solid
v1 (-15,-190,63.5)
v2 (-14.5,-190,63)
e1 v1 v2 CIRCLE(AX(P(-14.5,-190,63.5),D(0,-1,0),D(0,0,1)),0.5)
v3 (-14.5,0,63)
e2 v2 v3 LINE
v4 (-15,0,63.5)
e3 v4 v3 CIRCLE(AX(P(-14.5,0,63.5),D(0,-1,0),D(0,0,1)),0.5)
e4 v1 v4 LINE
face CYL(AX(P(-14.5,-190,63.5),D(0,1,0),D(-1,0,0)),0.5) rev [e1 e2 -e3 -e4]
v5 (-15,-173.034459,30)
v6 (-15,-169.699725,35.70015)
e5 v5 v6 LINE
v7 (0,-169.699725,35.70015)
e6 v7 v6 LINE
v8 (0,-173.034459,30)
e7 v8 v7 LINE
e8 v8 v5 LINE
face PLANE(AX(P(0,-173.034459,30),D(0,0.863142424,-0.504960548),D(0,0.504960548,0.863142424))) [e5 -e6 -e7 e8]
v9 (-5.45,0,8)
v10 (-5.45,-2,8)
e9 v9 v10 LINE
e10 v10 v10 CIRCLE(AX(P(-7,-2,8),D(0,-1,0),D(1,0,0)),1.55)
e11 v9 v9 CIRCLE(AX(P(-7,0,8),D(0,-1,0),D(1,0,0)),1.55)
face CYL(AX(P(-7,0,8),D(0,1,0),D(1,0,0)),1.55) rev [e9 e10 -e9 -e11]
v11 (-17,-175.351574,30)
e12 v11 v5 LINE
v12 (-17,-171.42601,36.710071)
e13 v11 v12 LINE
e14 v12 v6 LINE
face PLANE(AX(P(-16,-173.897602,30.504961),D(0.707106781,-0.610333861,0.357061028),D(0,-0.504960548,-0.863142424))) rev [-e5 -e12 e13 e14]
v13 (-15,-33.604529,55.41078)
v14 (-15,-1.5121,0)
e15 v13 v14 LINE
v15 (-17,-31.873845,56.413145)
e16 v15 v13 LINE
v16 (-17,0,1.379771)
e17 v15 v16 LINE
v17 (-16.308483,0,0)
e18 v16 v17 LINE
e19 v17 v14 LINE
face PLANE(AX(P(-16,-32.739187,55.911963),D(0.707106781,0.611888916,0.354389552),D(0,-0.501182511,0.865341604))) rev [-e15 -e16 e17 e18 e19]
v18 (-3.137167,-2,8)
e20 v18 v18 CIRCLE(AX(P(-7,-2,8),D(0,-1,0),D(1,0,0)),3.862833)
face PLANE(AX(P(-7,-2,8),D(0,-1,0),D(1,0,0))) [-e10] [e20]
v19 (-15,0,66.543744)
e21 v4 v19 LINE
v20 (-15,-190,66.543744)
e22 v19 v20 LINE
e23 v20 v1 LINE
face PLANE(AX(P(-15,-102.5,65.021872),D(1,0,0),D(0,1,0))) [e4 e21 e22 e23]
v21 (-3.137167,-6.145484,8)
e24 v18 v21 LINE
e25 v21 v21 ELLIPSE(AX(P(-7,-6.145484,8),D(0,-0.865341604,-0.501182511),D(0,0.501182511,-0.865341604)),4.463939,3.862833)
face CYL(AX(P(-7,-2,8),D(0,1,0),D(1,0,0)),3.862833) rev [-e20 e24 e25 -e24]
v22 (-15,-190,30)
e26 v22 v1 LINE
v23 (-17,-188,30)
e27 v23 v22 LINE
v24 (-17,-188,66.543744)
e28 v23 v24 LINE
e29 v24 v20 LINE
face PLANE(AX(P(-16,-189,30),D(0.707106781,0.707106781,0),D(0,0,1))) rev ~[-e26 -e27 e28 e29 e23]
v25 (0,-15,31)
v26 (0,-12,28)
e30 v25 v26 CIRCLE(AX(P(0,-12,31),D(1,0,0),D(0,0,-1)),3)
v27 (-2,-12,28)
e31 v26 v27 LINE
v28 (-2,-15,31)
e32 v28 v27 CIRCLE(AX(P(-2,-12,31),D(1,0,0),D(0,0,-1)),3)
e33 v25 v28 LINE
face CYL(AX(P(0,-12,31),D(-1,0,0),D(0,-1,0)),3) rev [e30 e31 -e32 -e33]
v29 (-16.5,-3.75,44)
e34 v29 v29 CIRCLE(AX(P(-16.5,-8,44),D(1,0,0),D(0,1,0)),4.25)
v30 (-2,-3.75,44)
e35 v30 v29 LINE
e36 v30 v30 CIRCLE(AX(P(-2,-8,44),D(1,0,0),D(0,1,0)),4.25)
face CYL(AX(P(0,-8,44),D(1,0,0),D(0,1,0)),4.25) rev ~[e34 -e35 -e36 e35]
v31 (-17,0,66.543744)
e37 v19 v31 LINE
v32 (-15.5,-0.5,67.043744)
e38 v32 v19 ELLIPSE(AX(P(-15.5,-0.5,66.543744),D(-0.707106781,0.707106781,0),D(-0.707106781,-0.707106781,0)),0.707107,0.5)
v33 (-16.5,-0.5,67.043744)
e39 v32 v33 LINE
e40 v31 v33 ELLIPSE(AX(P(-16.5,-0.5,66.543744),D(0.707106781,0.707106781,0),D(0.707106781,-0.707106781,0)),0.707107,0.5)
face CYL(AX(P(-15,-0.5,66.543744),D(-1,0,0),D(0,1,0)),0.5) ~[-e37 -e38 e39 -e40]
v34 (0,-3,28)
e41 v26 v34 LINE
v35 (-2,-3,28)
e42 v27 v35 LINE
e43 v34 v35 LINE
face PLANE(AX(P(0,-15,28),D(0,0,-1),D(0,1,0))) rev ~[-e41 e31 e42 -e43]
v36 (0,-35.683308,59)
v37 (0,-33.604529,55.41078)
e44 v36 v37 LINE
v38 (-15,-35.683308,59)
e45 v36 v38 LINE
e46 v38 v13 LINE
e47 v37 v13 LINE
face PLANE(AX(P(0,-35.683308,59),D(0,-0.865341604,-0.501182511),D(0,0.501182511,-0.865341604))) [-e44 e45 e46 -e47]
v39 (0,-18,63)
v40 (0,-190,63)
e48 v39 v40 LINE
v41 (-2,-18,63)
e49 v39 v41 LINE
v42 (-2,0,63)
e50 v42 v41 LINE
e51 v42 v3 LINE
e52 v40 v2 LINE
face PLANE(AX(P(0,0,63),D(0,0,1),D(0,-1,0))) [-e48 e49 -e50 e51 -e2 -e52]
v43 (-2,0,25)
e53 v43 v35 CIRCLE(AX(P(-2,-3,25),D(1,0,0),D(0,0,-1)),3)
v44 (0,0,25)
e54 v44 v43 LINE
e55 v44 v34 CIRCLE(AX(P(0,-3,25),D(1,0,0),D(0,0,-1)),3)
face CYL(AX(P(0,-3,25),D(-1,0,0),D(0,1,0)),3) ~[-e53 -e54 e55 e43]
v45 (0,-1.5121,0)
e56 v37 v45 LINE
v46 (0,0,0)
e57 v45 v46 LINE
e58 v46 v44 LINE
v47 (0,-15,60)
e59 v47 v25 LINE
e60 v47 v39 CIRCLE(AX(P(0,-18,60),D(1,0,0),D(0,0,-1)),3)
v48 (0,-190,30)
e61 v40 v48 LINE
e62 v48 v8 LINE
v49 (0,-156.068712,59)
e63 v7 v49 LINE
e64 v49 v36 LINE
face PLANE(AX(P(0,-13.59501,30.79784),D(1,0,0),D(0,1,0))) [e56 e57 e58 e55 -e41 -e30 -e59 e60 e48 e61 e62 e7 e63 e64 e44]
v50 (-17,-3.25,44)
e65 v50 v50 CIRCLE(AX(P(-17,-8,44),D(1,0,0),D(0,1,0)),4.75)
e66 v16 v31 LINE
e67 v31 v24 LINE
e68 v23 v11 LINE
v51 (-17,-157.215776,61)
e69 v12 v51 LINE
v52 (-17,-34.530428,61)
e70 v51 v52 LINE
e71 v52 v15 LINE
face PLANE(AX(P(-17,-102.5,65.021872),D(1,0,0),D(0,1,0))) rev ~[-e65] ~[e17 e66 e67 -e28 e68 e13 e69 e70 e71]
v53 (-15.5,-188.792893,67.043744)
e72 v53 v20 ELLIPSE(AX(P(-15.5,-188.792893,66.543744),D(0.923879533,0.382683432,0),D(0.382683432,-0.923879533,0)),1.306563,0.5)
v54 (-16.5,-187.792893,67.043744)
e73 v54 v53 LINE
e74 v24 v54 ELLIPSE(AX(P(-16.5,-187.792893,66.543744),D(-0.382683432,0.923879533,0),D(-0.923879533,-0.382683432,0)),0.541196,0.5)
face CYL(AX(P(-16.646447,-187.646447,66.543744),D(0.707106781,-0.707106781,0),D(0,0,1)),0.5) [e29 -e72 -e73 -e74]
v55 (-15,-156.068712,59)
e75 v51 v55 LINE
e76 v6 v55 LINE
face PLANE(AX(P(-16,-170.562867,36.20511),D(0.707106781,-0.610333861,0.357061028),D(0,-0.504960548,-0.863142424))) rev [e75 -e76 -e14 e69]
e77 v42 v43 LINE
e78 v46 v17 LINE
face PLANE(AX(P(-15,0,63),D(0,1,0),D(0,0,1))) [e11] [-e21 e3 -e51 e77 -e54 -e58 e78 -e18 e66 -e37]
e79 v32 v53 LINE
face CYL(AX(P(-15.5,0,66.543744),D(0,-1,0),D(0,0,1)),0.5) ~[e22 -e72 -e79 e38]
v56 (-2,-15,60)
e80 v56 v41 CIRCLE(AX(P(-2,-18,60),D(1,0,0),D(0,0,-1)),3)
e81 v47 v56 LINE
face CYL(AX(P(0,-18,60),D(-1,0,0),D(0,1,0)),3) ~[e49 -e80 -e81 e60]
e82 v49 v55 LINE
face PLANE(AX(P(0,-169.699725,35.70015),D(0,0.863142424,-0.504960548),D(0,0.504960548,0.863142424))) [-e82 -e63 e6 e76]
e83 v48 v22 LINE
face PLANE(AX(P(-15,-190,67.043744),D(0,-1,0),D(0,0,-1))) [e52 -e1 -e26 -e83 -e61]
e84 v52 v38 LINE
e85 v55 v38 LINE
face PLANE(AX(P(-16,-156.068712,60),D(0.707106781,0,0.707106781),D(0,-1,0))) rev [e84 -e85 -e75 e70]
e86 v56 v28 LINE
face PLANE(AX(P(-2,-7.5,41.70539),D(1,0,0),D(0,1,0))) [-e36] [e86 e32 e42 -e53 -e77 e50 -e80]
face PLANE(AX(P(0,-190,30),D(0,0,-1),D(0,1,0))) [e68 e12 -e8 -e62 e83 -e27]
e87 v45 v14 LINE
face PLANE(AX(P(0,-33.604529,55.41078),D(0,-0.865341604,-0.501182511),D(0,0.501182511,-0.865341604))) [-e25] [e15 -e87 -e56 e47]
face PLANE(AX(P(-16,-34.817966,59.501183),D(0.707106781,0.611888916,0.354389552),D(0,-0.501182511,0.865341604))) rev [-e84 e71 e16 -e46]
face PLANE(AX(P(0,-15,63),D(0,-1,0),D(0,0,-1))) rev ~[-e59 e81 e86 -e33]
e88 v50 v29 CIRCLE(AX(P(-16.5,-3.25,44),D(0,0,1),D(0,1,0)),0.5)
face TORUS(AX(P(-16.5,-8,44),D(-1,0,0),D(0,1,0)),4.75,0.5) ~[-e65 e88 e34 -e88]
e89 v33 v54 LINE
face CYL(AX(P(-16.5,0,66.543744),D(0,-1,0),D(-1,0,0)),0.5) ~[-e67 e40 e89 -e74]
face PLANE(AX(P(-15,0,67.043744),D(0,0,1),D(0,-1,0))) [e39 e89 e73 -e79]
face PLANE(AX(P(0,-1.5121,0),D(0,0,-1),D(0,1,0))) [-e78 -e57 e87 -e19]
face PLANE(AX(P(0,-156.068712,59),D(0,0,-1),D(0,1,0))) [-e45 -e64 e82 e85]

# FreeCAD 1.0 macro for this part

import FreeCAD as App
import Part
import Sketcher


def edges_at(feature, points):
    """Names of the edges that pass closest to the given points."""
    edges = feature.Shape.Edges
    near = lambda p: min(range(len(edges)), key=lambda i: edges[i].distToShape(Part.Vertex(*p))[0])
    return sorted({f"Edge{near(p) + 1}" for p in points})


def add_polygon(sketch, points):
    """Adds a closed chain of lines whose ends are joined by coincident constraints."""
    first, n = sketch.GeometryCount, len(points)
    for a, b in zip(points, points[1:] + points[:1]):
        sketch.addGeometry(Part.LineSegment(App.Vector(*a, 0), App.Vector(*b, 0)), False)
    for i in range(n):
        sketch.addConstraint(Sketcher.Constraint("Coincident", first + i, 2, first + (i + 1) % n, 1))

doc = App.newDocument("Part")
params = doc.addObject("Spreadsheet::Sheet", "Params")
for row, (alias, value) in enumerate([
    ("sketch1_diameter", "8.5 mm"),
    ("sketch1_width", "190 mm"),
    ("sketch1_height", "63 mm"),
    ("sketch1_height2", "33 mm"),
    ("pad1_length", "17 mm"),
    ("sketch2_diameter", "8.5 mm"),
    ("sketch2_width", "15 mm"),
    ("sketch2_height", "35 mm"),
    ("pocket1_length", "2 mm"),
    ("sketch3_width", "190 mm"),
    ("pad2_length", "2 mm"),
    ("fillet_radius", "3 mm"),
    ("sketch4_diameter", "3.1 mm"),
    ("pocket2_length", "25 mm"),
    ("sketch5_diameter", "3.1 mm"),
    ("pocket3_length", "23 mm"),
    ("chamfer_size", "2 mm"),
    ("fillet2_radius", "0.5 mm"),
], start=1):
    params.set(f"A{row}", alias)
    params.set(f"B{row}", "=" + value)
    params.setAlias(f"B{row}", alias)

body = doc.addObject("PartDesign::Body", "Body")

sketch1 = doc.addObject("Sketcher::SketchObject", "Sketch")
body.addObject(sketch1)
sketch1.AttachmentSupport = (doc.YZ_Plane, [""])
sketch1.MapMode = "FlatFace"
add_polygon(sketch1, [(-1.5, 0), (0, 0), (0, 63), (-190, 63), (-190, 30), (-173, 30), (-169.7, 35.7), (-156.1, 59), (-35.7, 59), (-33.6, 55.4)])
sketch1.addGeometry(Part.Circle(App.Vector(-8, 44, 0), App.Vector(0, 0, 1), 4.2), False)
sketch1.addConstraint([
    Sketcher.Constraint("Horizontal", 0),
    Sketcher.Constraint("Vertical", 1),
    Sketcher.Constraint("Horizontal", 2),
    Sketcher.Constraint("Vertical", 3),
    Sketcher.Constraint("Horizontal", 4),
    Sketcher.Constraint("Horizontal", 7),
    Sketcher.Constraint("Coincident", 0, 2, -1, 1),
    Sketcher.Constraint("Parallel", 5, 6),
    Sketcher.Constraint("Parallel", 8, 9),
    Sketcher.Constraint("Diameter", 10, 8.5),
    Sketcher.Constraint("DistanceX", 2, 2, 2, 1, 190.0),
    Sketcher.Constraint("DistanceY", 1, 1, 1, 2, 63.0),
    Sketcher.Constraint("DistanceY", 3, 2, 3, 1, 33.0),
    Sketcher.Constraint("DistanceX", 10, 3, -1, 1, 8.0),
    Sketcher.Constraint("DistanceY", -1, 1, 10, 3, 44.0),
    Sketcher.Constraint("DistanceY", -1, 1, 6, 2, 59.0),
    Sketcher.Constraint("DistanceX", 0, 1, 0, 2, 1.5121),
    Sketcher.Constraint("DistanceX", 4, 1, 4, 2, 16.965541),
    Sketcher.Constraint("Distance", 5, 6.60395),
    Sketcher.Constraint("Distance", 8, 4.147749),
    Sketcher.Constraint("DistanceX", 7, 1, 7, 2, 120.385405),
    Sketcher.Constraint("DistanceY", -1, 1, 5, 2, 35.70015),
])
sketch1.setExpression("Constraints[19]", "Params.sketch1_diameter")
sketch1.setExpression("Constraints[20]", "Params.sketch1_width")
sketch1.setExpression("Constraints[21]", "Params.sketch1_height")
sketch1.setExpression("Constraints[22]", "Params.sketch1_height2")
pad1 = doc.addObject("PartDesign::Pad", "Pad")
body.addObject(pad1)
pad1.Profile = sketch1
pad1.setExpression("Length", "Params.pad1_length")
pad1.Reversed = True

sketch2 = doc.addObject("Sketcher::SketchObject", "Sketch001")
body.addObject(sketch2)
sketch2.AttachmentSupport = (doc.YZ_Plane, [""])
sketch2.MapMode = "FlatFace"
add_polygon(sketch2, [(-15, 28), (0, 28), (0, 63), (-15, 63)])
sketch2.addGeometry(Part.Circle(App.Vector(-8, 44, 0), App.Vector(0, 0, 1), 4.2), False)
sketch2.addConstraint([
    Sketcher.Constraint("Horizontal", 0),
    Sketcher.Constraint("Vertical", 1),
    Sketcher.Constraint("Horizontal", 2),
    Sketcher.Constraint("Vertical", 3),
    Sketcher.Constraint("PointOnObject", 0, 2, -2),
    Sketcher.Constraint("Diameter", 4, 8.5),
    Sketcher.Constraint("DistanceX", 0, 1, 0, 2, 15.0),
    Sketcher.Constraint("DistanceY", 1, 1, 1, 2, 35.0),
    Sketcher.Constraint("DistanceX", 4, 3, -1, 1, 8.0),
    Sketcher.Constraint("DistanceY", -1, 1, 4, 3, 44.0),
    Sketcher.Constraint("DistanceY", -1, 1, 0, 2, 28.0),
])
sketch2.setExpression("Constraints[9]", "Params.sketch2_diameter")
sketch2.setExpression("Constraints[10]", "Params.sketch2_width")
sketch2.setExpression("Constraints[11]", "Params.sketch2_height")
pocket1 = doc.addObject("PartDesign::Pocket", "Pocket")
body.addObject(pocket1)
pocket1.Profile = sketch2
pocket1.setExpression("Length", "Params.pocket1_length")

sketch3 = doc.addObject("Sketcher::SketchObject", "Sketch002")
body.addObject(sketch3)
sketch3.AttachmentSupport = (doc.YZ_Plane, [""])
sketch3.MapMode = "FlatFace"
sketch3.AttachmentOffset = App.Placement(App.Vector(0, 0, -15), App.Rotation())
add_polygon(sketch3, [(-190, 63), (0, 63), (0, 67), (-190, 67)])
sketch3.addConstraint([
    Sketcher.Constraint("Horizontal", 0),
    Sketcher.Constraint("Vertical", 1),
    Sketcher.Constraint("Horizontal", 2),
    Sketcher.Constraint("Vertical", 3),
    Sketcher.Constraint("PointOnObject", 0, 2, -2),
    Sketcher.Constraint("DistanceX", 0, 1, 0, 2, 190.0),
    Sketcher.Constraint("DistanceY", -1, 1, 0, 2, 63.0),
    Sketcher.Constraint("DistanceY", 1, 1, 1, 2, 4.043744),
])
sketch3.setExpression("Constraints[9]", "Params.sketch3_width")
pad2 = doc.addObject("PartDesign::Pad", "Pad001")
body.addObject(pad2)
pad2.Profile = sketch3
pad2.setExpression("Length", "Params.pad2_length")
pad2.Reversed = True
doc.recompute()

fillet = doc.addObject("PartDesign::Fillet", "Fillet")
body.addObject(fillet)
fillet.Base = (pad2, edges_at(pad2, [(-1, -15, 28), (-1, -15, 63), (-1, 0, 28)]))
fillet.setExpression("Radius", "Params.fillet_radius")

sketch4 = doc.addObject("Sketcher::SketchObject", "Sketch003")
body.addObject(sketch4)
sketch4.AttachmentSupport = (doc.XZ_Plane, [""])
sketch4.MapMode = "FlatFace"
sketch4.addGeometry(Part.Circle(App.Vector(-7, 8, 0), App.Vector(0, 0, 1), 1.6), False)
sketch4.addConstraint([
    Sketcher.Constraint("Diameter", 0, 3.1),
    Sketcher.Constraint("DistanceX", 0, 3, -1, 1, 7.0),
    Sketcher.Constraint("DistanceY", -1, 1, 0, 3, 8.0),
])
sketch4.setExpression("Constraints[0]", "Params.sketch4_diameter")
pocket2 = doc.addObject("PartDesign::Pocket", "Pocket001")
body.addObject(pocket2)
pocket2.Profile = sketch4
pocket2.setExpression("Length", "Params.pocket2_length")
pocket2.Reversed = True

sketch5 = doc.addObject("Sketcher::SketchObject", "Sketch004")
body.addObject(sketch5)
sketch5.AttachmentSupport = (doc.XZ_Plane, [""])
sketch5.MapMode = "FlatFace"
sketch5.AttachmentOffset = App.Placement(App.Vector(0, 0, 2), App.Rotation())
sketch5.addGeometry([
    Part.Circle(App.Vector(-7, 8, 0), App.Vector(0, 0, 1), 3.9),
    Part.Circle(App.Vector(-7, 8, 0), App.Vector(0, 0, 1), 1.6),
], False)
sketch5.addConstraint([
    Sketcher.Constraint("Coincident", 1, 3, 0, 3),
    Sketcher.Constraint("Diameter", 1, 3.1),
    Sketcher.Constraint("DistanceX", 0, 3, -1, 1, 7.0),
    Sketcher.Constraint("DistanceY", -1, 1, 0, 3, 8.0),
    Sketcher.Constraint("Diameter", 0, 7.725665),
])
sketch5.setExpression("Constraints[1]", "Params.sketch5_diameter")
pocket3 = doc.addObject("PartDesign::Pocket", "Pocket002")
body.addObject(pocket3)
pocket3.Profile = sketch5
pocket3.setExpression("Length", "Params.pocket3_length")
pocket3.Reversed = True
doc.recompute()

chamfer = doc.addObject("PartDesign::Chamfer", "Chamfer")
body.addObject(chamfer)
chamfer.Base = (pocket3, edges_at(pocket3, [
    (-17, -17.558, 27.705),
    (-17, -95.876, 59),
    (-17, -162.884, 47.35),
    (-17, -190, 48.522),
]))
chamfer.setExpression("Size", "Params.chamfer_size")
doc.recompute()

fillet2 = doc.addObject("PartDesign::Fillet", "Fillet001")
body.addObject(fillet2)
fillet2.Base = (chamfer, edges_at(chamfer, [
    (-15, -95, 63),
    (-15, -95, 67.044),
    (-17, -94, 67.044),
    (-16, -189, 67.044),
    (-16, 0, 67.044),
    (-17, -12.25, 44),
]))
fillet2.setExpression("Radius", "Params.fillet2_radius")

doc.recompute()
